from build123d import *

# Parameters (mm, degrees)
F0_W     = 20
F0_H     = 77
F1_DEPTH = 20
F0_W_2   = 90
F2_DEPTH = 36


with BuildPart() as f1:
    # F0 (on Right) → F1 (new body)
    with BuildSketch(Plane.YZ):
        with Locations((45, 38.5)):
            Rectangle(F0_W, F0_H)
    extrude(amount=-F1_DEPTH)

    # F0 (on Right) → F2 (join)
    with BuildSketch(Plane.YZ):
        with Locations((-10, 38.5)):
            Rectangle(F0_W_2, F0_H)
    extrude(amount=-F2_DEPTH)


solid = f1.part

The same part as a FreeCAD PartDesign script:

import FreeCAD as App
import Part
import Sketcher
from FreeCAD import Vector


def add_polygon(sketch, points):
    """Adds a closed chain of lines whose ends are joined by coincident constraints."""
    first, n = sketch.GeometryCount, len(points)
    for a, b in zip(points, points[1:] + points[:1]):
        sketch.addGeometry(Part.LineSegment(App.Vector(*a, 0), App.Vector(*b, 0)), False)
    for i in range(n):
        sketch.addConstraint(Sketcher.Constraint("Coincident", first + i, 2, first + (i + 1) % n, 1))

doc = App.newDocument("Part")
body = doc.addObject("PartDesign::Body", "Body")

# Sketch on YZ plane
sketch1 = body.newObject("Sketcher::SketchObject", "Sketch")
sketch1.AttachmentSupport = (doc.getObject("YZ_Plane"), [""])
sketch1.MapMode = "FlatFace"
add_polygon(sketch1, [(35, 77), (35, 0), (55, 0), (55, 77)])  # lines 0-3
sketch1.addConstraint([
    Sketcher.Constraint("Vertical", 0),
    Sketcher.Constraint("Horizontal", 1),
    Sketcher.Constraint("Vertical", 2),
    Sketcher.Constraint("Horizontal", 3),
    Sketcher.Constraint("PointOnObject", 0, 2, -1),
    Sketcher.Constraint("DistanceX", 1, 1, 1, 2, 20.0),
    Sketcher.Constraint("DistanceY", 0, 2, 0, 1, 77.0),
    Sketcher.Constraint("DistanceX", -1, 1, 0, 2, 35.0),
])
pad1 = body.newObject("PartDesign::Pad", "Pad")
pad1.Profile = sketch1
pad1.Length = 20
pad1.Reversed = True

# Sketch on YZ plane
sketch2 = body.newObject("Sketcher::SketchObject", "Sketch001")
sketch2.AttachmentSupport = (doc.getObject("YZ_Plane"), [""])
sketch2.MapMode = "FlatFace"
add_polygon(sketch2, [(-55, 77), (-55, 0), (35, 0), (35, 77)])  # lines 0-3
sketch2.addConstraint([
    Sketcher.Constraint("Vertical", 0),
    Sketcher.Constraint("Horizontal", 1),
    Sketcher.Constraint("Vertical", 2),
    Sketcher.Constraint("Horizontal", 3),
    Sketcher.Constraint("PointOnObject", 0, 2, -1),
    Sketcher.Constraint("DistanceX", 1, 1, 1, 2, 90.0),
    Sketcher.Constraint("DistanceY", 0, 2, 0, 1, 77.0),
    Sketcher.Constraint("DistanceX", 0, 2, -1, 1, 55.0),
])
pad2 = body.newObject("PartDesign::Pad", "Pad001")
pad2.Profile = sketch2
pad2.Length = 36
pad2.Reversed = True

doc.recompute()
